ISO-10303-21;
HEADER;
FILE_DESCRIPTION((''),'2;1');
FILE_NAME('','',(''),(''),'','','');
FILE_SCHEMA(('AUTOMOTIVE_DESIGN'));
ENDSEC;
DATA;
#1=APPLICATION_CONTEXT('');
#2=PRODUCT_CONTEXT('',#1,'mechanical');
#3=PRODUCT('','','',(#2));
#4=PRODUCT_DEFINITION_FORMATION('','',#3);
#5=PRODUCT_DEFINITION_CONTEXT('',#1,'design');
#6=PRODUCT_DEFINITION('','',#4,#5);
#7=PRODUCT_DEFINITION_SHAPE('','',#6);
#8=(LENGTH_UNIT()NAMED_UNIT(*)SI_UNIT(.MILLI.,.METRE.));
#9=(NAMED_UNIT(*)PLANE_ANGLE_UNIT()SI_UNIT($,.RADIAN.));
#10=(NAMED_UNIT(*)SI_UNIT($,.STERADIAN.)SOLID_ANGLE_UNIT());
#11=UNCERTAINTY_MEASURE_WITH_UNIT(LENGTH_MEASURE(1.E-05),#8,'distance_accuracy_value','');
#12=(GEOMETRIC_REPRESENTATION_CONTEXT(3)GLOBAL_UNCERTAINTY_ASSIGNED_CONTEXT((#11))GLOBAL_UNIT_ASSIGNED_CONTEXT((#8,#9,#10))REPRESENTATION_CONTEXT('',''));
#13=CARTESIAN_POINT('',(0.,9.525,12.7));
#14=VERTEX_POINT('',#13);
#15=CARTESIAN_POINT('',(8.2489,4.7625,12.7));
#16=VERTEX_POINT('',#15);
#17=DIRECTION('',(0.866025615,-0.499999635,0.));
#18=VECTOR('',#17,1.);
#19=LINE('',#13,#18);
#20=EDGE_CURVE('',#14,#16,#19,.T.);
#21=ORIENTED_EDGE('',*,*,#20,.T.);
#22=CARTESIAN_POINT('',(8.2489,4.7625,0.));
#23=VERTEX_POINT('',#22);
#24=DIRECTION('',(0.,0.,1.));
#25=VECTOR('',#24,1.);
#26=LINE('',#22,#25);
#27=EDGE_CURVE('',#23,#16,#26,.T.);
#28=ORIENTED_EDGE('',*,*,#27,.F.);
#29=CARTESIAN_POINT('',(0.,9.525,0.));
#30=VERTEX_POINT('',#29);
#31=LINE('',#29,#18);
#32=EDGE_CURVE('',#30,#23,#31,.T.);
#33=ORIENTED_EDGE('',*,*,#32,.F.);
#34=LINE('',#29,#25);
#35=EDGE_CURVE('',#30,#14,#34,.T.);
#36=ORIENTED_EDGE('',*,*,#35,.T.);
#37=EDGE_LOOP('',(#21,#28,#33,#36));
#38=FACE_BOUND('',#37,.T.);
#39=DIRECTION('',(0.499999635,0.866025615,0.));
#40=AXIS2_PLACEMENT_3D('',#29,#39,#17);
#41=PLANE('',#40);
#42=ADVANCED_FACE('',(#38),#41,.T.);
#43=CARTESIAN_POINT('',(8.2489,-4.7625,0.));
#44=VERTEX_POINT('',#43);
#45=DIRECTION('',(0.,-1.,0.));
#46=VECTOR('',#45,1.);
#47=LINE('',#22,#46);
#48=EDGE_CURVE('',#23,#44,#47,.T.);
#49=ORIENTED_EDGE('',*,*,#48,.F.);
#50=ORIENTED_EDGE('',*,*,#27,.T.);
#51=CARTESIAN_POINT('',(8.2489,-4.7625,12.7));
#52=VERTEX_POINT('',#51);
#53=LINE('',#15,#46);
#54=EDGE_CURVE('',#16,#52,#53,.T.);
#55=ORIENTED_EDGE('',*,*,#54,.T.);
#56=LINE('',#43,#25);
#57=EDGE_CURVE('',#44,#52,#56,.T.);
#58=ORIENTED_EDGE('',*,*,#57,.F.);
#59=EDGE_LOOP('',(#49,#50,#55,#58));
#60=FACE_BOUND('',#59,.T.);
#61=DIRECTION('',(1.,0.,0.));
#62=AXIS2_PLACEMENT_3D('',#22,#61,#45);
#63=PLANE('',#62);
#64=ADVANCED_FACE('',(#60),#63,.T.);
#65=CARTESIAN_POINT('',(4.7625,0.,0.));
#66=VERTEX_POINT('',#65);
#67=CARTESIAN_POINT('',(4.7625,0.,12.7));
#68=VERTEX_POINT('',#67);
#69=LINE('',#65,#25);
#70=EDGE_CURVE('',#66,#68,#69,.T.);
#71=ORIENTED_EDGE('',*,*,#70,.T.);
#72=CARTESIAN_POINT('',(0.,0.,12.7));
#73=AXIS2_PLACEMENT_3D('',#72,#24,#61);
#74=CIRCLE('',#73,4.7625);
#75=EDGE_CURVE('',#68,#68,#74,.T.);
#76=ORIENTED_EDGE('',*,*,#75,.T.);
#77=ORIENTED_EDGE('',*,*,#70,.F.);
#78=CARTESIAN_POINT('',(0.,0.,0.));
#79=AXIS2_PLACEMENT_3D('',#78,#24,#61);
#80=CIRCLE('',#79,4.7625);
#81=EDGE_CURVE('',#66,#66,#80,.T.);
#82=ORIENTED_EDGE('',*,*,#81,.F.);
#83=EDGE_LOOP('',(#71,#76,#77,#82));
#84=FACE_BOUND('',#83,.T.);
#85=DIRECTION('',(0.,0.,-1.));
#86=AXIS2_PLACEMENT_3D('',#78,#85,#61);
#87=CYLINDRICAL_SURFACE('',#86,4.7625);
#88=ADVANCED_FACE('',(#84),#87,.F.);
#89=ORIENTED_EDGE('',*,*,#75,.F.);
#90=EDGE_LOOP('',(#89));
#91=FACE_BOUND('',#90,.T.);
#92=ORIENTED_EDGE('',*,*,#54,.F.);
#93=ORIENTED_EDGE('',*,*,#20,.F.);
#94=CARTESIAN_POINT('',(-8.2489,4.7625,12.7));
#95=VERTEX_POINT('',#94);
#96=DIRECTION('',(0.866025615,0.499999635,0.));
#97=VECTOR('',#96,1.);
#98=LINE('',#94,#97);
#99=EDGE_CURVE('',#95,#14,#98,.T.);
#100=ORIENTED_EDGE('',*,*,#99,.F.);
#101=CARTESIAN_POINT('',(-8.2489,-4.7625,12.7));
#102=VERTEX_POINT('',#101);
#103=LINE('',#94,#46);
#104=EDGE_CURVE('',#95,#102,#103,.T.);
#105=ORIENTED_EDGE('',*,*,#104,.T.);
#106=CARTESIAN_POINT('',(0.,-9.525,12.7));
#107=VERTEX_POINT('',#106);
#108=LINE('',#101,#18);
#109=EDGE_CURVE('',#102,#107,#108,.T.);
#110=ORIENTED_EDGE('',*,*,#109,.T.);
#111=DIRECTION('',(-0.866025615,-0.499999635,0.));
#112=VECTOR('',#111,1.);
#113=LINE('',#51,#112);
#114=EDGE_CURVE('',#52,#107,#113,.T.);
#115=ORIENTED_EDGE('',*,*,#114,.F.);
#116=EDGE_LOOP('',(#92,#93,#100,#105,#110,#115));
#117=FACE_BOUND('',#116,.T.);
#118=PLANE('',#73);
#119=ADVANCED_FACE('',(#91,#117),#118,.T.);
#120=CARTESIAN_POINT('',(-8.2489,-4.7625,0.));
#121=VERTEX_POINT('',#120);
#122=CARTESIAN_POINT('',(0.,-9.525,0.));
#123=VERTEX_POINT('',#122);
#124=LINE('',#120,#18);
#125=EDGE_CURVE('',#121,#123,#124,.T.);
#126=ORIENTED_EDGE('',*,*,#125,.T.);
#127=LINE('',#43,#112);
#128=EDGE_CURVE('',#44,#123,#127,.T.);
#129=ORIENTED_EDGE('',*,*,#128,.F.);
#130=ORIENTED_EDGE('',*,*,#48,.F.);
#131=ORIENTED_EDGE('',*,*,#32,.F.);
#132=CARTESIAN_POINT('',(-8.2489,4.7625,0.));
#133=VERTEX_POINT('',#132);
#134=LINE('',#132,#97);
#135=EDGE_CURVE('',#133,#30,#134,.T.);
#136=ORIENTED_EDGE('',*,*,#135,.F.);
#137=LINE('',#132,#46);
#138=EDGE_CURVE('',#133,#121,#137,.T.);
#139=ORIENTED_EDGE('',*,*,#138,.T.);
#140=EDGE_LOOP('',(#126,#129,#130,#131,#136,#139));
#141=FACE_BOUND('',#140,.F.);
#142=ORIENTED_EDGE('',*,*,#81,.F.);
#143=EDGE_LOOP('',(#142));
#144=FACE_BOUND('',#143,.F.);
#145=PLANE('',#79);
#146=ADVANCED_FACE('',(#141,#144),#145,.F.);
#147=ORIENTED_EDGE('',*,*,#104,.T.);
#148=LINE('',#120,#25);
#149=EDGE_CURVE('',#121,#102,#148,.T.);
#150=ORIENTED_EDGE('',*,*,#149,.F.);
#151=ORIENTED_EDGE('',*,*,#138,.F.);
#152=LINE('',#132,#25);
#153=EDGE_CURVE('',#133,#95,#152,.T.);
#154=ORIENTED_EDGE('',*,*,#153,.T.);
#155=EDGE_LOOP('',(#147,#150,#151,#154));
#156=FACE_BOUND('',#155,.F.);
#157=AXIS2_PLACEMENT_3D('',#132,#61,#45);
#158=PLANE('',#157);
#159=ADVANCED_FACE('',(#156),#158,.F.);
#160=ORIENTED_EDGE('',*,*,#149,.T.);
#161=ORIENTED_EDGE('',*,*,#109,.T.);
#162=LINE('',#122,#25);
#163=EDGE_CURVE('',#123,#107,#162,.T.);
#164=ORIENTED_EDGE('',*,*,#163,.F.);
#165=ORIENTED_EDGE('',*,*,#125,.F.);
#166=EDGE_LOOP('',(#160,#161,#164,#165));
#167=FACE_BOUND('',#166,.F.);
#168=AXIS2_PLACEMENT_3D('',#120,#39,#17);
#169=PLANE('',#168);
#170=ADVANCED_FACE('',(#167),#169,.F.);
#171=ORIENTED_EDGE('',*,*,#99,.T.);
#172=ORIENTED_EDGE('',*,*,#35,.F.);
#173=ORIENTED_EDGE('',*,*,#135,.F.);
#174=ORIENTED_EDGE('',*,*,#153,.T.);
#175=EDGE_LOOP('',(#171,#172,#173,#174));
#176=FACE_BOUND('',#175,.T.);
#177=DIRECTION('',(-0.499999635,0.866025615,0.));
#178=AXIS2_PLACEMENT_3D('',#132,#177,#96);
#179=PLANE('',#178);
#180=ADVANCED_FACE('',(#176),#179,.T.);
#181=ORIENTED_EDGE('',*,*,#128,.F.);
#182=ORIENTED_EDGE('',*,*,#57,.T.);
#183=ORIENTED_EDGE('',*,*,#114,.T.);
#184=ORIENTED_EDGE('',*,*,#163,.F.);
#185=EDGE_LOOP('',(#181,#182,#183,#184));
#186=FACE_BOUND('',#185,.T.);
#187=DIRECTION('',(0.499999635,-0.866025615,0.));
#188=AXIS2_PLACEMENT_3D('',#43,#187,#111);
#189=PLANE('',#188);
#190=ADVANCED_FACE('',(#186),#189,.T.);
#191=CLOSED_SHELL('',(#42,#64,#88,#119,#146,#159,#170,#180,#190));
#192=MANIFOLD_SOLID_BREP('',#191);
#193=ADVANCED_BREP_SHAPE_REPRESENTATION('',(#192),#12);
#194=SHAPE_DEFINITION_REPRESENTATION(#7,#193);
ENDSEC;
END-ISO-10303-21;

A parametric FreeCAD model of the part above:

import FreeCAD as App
import Part
import Sketcher

V = App.Vector
Q = App.Units.Quantity

doc = App.newDocument("Part")
body = doc.addObject("PartDesign::Body", "Body")

# Sketch on XY plane
sketch1 = body.newObject("Sketcher::SketchObject", "Sketch")
sketch1.AttachmentSupport = (doc.getObject("XY_Plane"), [""])
sketch1.MapMode = "FlatFace"
sketch1.addGeometry([
    Part.LineSegment(V(0, 9.525, 0), V(-8.2489, 4.7625, 0)),  # 0
    Part.LineSegment(V(-8.2489, 4.7625, 0), V(-8.2489, -4.7625, 0)),  # 1
    Part.LineSegment(V(-8.2489, -4.7625, 0), V(0, -9.525, 0)),  # 2
    Part.LineSegment(V(0, -9.525, 0), V(8.2489, -4.7625, 0)),  # 3
    Part.LineSegment(V(8.2489, -4.7625, 0), V(8.2489, 4.7625, 0)),  # 4
    Part.LineSegment(V(8.2489, 4.7625, 0), V(0, 9.525, 0)),  # 5
    Part.Circle(V(0, 0, 0), V(0, 0, 1), 4.7625),  # 6
], False)
sketch1.addConstraint([
    Sketcher.Constraint("Coincident", 0, 2, 1, 1),
    Sketcher.Constraint("Coincident", 1, 2, 2, 1),
    Sketcher.Constraint("Coincident", 2, 2, 3, 1),
    Sketcher.Constraint("Coincident", 3, 2, 4, 1),
    Sketcher.Constraint("Coincident", 4, 2, 5, 1),
    Sketcher.Constraint("Coincident", 5, 2, 0, 1),
    Sketcher.Constraint("Vertical", 1),
    Sketcher.Constraint("Vertical", 4),
    Sketcher.Constraint("Coincident", 6, 3, -1, 1),
    Sketcher.Constraint("Symmetric", 0, 2, 3, 2, -1, 1),
    Sketcher.Constraint("Symmetric", 2, 2, 5, 2, -1, 1),
    Sketcher.Constraint("PointOnObject", 2, 2, -2),
    Sketcher.Constraint("Parallel", 2, 5),
    Sketcher.Constraint("Horizontal", 1, 2, 3, 2),
    Sketcher.Constraint("Diameter", 6, Q("0.375 in")),
    Sketcher.Constraint("Angle", 0, Q("-150 deg")),
    Sketcher.Constraint("DistanceY", 1, 2, 1, 1, Q("0.375 in")),
    Sketcher.Constraint("Distance", 0, Q("0.375 in")),
])
pad1 = body.newObject("PartDesign::Pad", "Pad")
pad1.Profile = sketch1
pad1.Length = Q("0.5 in")

doc.recompute()
